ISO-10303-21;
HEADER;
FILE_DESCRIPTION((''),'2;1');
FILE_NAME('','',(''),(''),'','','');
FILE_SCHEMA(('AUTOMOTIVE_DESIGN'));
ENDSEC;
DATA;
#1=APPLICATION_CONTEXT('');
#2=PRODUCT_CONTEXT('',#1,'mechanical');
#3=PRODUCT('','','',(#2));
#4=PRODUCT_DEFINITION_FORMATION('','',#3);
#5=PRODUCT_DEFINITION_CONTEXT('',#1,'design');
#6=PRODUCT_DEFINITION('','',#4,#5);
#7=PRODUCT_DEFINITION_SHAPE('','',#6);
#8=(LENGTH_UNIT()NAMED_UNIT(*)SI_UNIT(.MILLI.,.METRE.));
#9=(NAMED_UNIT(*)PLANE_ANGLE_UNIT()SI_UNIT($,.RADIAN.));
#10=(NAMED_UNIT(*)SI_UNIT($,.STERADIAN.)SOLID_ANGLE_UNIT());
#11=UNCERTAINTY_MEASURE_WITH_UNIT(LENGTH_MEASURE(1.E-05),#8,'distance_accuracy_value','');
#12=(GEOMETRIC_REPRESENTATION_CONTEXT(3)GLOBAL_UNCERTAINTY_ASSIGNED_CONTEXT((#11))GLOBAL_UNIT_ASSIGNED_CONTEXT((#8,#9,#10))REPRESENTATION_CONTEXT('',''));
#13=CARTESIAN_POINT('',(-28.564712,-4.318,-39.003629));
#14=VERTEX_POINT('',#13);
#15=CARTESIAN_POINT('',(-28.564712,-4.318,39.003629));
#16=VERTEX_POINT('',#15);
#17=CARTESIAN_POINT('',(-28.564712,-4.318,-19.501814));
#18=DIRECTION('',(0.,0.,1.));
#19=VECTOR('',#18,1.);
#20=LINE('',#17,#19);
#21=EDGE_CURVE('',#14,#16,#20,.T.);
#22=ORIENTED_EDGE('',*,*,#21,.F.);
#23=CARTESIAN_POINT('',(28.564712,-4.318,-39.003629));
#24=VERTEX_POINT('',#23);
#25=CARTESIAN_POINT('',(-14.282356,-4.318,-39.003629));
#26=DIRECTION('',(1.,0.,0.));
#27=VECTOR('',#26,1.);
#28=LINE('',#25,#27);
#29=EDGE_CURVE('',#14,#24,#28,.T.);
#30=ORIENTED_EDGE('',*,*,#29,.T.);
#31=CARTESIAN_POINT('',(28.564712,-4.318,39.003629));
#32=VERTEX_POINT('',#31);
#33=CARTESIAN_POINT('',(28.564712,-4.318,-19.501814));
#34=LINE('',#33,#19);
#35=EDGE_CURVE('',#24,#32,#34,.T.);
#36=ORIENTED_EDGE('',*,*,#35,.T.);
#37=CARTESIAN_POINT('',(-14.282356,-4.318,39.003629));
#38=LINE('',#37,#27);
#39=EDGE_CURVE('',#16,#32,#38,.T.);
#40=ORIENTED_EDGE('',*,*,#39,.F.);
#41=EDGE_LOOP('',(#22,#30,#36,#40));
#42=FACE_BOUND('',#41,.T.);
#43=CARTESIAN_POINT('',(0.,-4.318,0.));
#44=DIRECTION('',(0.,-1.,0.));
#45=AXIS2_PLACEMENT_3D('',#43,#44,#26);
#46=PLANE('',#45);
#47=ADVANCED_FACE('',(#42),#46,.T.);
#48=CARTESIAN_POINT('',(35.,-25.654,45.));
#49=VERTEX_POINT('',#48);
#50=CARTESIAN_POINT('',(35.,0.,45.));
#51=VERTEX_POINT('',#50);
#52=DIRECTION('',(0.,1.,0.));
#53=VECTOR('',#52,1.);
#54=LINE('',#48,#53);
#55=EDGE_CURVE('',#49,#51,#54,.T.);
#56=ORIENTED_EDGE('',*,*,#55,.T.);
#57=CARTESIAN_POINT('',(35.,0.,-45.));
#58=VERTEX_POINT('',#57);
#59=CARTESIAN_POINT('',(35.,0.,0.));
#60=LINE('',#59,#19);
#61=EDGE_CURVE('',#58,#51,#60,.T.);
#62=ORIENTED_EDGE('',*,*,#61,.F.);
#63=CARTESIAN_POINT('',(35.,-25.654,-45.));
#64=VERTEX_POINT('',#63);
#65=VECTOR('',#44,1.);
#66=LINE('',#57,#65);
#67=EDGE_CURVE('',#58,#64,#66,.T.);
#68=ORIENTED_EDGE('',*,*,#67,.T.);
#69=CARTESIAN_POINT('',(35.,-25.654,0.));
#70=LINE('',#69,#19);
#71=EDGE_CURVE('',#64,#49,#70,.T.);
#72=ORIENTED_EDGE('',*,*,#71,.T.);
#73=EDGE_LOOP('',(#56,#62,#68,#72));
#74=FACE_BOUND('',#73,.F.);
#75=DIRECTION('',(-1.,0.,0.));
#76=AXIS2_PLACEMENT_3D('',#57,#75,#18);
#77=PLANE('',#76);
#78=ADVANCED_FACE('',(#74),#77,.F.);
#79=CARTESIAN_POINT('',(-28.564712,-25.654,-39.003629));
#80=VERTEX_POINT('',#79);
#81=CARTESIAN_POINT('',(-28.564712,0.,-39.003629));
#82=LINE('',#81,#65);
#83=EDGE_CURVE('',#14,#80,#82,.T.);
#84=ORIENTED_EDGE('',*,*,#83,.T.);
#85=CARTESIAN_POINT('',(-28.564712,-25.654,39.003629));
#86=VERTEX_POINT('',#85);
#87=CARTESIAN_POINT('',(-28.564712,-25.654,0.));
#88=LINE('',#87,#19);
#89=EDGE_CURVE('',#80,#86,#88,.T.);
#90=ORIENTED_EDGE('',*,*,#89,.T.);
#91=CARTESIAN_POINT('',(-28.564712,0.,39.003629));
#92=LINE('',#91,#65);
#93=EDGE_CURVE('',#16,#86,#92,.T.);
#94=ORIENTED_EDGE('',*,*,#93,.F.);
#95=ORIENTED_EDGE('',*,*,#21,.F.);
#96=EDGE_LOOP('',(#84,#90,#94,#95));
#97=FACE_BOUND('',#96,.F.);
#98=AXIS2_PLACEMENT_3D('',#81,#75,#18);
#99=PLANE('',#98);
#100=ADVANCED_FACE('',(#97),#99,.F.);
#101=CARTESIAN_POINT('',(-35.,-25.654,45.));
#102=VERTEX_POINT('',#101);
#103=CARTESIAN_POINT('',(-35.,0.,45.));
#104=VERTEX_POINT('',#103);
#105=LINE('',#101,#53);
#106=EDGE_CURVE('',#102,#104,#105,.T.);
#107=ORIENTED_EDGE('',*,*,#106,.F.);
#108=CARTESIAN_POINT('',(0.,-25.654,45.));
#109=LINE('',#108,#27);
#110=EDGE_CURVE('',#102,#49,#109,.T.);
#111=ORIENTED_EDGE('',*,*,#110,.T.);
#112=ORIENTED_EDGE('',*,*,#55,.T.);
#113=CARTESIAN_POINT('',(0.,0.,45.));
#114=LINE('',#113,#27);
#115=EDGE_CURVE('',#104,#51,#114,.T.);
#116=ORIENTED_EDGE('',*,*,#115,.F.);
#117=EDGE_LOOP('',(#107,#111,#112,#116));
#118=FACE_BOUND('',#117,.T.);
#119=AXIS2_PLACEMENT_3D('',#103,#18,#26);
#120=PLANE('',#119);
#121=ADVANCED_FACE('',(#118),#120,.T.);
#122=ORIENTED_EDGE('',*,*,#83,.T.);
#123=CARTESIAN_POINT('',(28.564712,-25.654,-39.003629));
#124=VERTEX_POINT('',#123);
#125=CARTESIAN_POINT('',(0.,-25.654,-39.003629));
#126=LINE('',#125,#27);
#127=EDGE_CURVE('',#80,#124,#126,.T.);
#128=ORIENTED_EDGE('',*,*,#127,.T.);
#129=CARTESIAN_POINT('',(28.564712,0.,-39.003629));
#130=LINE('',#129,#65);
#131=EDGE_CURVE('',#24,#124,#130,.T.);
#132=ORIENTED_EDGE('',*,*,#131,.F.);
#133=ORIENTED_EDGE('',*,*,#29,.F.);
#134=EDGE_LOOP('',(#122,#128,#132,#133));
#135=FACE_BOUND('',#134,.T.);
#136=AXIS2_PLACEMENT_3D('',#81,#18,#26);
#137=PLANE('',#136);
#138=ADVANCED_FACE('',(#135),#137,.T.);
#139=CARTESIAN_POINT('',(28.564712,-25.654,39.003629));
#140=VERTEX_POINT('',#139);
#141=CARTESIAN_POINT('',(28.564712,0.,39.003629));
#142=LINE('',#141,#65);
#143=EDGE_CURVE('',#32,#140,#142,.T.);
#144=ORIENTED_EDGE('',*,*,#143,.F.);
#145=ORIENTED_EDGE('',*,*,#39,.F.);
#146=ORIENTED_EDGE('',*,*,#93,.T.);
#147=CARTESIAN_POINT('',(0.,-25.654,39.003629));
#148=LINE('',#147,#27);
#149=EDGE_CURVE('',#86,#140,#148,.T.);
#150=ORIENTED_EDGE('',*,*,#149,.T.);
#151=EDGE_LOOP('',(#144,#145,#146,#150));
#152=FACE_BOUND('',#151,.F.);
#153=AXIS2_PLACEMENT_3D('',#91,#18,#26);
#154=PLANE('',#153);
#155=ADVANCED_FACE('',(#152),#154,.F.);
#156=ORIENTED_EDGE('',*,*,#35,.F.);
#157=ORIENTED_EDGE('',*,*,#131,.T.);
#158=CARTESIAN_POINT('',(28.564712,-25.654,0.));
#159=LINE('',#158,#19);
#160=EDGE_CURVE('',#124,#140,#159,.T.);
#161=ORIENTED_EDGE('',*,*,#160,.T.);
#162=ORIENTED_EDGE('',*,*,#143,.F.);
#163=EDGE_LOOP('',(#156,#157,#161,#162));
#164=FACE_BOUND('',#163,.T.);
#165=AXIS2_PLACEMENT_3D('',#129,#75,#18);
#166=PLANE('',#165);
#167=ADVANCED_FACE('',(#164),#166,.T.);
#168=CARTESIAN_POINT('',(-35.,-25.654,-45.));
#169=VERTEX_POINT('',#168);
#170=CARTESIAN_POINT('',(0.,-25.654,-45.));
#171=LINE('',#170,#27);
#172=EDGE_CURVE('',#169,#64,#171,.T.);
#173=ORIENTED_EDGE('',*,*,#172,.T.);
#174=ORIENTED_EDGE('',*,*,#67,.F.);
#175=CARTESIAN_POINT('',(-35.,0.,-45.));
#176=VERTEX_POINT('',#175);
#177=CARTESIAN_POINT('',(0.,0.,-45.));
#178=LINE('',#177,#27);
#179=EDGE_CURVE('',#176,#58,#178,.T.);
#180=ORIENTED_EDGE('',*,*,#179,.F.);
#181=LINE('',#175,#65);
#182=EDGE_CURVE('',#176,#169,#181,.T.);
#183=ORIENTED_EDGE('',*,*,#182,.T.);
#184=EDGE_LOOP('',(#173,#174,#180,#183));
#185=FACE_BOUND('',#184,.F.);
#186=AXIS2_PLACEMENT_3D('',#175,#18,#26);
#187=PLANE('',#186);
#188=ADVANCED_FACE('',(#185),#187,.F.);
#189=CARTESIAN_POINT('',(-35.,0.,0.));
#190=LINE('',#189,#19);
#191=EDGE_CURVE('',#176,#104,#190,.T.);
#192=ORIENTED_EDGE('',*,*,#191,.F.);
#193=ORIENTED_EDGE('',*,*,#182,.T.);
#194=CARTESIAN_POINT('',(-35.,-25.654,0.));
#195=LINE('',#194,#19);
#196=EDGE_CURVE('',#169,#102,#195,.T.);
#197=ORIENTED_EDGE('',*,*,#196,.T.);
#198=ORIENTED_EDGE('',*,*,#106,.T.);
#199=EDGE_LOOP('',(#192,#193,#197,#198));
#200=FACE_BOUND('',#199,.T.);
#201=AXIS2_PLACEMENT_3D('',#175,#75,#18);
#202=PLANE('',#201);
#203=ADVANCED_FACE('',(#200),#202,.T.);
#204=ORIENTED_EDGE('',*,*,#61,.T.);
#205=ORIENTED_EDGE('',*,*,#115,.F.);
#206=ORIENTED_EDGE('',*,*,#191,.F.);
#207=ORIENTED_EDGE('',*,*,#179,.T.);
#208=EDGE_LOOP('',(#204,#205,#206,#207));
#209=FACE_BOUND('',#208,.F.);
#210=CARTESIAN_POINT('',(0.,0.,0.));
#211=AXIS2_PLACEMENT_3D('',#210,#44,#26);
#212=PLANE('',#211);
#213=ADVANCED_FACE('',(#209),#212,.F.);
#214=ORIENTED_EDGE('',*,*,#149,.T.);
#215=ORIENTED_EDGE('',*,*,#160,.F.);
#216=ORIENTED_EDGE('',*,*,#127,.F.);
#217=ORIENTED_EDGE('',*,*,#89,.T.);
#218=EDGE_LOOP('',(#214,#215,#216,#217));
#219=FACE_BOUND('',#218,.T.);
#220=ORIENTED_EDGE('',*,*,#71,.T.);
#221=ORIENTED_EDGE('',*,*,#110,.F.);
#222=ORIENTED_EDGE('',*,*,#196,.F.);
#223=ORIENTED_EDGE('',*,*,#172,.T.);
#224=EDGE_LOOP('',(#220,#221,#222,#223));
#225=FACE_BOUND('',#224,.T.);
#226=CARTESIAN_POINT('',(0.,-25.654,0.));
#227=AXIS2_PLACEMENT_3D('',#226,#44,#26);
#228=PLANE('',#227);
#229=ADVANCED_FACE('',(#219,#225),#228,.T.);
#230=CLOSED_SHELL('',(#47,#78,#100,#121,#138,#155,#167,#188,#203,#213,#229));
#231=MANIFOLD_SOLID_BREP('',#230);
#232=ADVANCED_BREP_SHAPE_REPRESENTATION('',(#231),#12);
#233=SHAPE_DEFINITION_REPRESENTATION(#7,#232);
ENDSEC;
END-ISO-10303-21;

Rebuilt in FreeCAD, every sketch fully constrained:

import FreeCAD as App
import Part
import Sketcher

V = App.Vector
Q = App.Units.Quantity


def add_polygon(sketch, points):
    """Adds a closed chain of lines whose ends are joined by coincident constraints."""
    first, n = sketch.GeometryCount, len(points)
    for a, b in zip(points, points[1:] + points[:1]):
        sketch.addGeometry(Part.LineSegment(App.Vector(*a, 0), App.Vector(*b, 0)), False)
    for i in range(n):
        sketch.addConstraint(Sketcher.Constraint("Coincident", first + i, 2, first + (i + 1) % n, 1))

doc = App.newDocument("Part")
body = doc.addObject("PartDesign::Body", "Body")

# Sketch on XZ plane
sketch1 = body.newObject("Sketcher::SketchObject", "Sketch")
sketch1.AttachmentSupport = (doc.getObject("XZ_Plane"), [""])
sketch1.MapMode = "FlatFace"
add_polygon(sketch1, [(-35, 45), (-35, -45), (35, -45), (35, 45)])  # lines 0-3
add_polygon(sketch1, [(29, -39), (-29, -39), (-29, 39), (29, 39)])  # lines 4-7
sketch1.addConstraint([
    Sketcher.Constraint("Vertical", 0),
    Sketcher.Constraint("Horizontal", 1),
    Sketcher.Constraint("Vertical", 2),
    Sketcher.Constraint("Horizontal", 3),
    Sketcher.Constraint("Horizontal", 4),
    Sketcher.Constraint("Vertical", 5),
    Sketcher.Constraint("Horizontal", 6),
    Sketcher.Constraint("Vertical", 7),
    Sketcher.Constraint("Symmetric", 0, 2, 2, 2, -1, 1),
    Sketcher.Constraint("Symmetric", 4, 2, 6, 2, -1, 1),
    Sketcher.Constraint("DistanceX", 1, 1, 1, 2, Q("70 mm")),
    Sketcher.Constraint("DistanceY", 0, 2, 0, 1, Q("90 mm")),
    Sketcher.Constraint("DistanceX", 4, 2, 4, 1, Q("57.129424 mm")),
    Sketcher.Constraint("DistanceY", 5, 1, 5, 2, Q("78.007258 mm")),
])
pad1 = body.newObject("PartDesign::Pad", "Pad")
pad1.Profile = sketch1
pad1.Length = 25.654

# Sketch on XZ plane
sketch2 = body.newObject("Sketcher::SketchObject", "Sketch001")
sketch2.AttachmentSupport = (doc.getObject("XZ_Plane"), [""])
sketch2.MapMode = "FlatFace"
add_polygon(sketch2, [(-35, 45), (-35, -45), (35, -45), (35, 45)])  # lines 0-3
sketch2.addConstraint([
    Sketcher.Constraint("Vertical", 0),
    Sketcher.Constraint("Horizontal", 1),
    Sketcher.Constraint("Vertical", 2),
    Sketcher.Constraint("Horizontal", 3),
    Sketcher.Constraint("Symmetric", 0, 2, 2, 2, -1, 1),
    Sketcher.Constraint("DistanceX", 1, 1, 1, 2, Q("70 mm")),
    Sketcher.Constraint("DistanceY", 0, 2, 0, 1, Q("90 mm")),
])
pad2 = body.newObject("PartDesign::Pad", "Pad001")
pad2.Profile = sketch2
pad2.Length = 4.318

doc.recompute()
